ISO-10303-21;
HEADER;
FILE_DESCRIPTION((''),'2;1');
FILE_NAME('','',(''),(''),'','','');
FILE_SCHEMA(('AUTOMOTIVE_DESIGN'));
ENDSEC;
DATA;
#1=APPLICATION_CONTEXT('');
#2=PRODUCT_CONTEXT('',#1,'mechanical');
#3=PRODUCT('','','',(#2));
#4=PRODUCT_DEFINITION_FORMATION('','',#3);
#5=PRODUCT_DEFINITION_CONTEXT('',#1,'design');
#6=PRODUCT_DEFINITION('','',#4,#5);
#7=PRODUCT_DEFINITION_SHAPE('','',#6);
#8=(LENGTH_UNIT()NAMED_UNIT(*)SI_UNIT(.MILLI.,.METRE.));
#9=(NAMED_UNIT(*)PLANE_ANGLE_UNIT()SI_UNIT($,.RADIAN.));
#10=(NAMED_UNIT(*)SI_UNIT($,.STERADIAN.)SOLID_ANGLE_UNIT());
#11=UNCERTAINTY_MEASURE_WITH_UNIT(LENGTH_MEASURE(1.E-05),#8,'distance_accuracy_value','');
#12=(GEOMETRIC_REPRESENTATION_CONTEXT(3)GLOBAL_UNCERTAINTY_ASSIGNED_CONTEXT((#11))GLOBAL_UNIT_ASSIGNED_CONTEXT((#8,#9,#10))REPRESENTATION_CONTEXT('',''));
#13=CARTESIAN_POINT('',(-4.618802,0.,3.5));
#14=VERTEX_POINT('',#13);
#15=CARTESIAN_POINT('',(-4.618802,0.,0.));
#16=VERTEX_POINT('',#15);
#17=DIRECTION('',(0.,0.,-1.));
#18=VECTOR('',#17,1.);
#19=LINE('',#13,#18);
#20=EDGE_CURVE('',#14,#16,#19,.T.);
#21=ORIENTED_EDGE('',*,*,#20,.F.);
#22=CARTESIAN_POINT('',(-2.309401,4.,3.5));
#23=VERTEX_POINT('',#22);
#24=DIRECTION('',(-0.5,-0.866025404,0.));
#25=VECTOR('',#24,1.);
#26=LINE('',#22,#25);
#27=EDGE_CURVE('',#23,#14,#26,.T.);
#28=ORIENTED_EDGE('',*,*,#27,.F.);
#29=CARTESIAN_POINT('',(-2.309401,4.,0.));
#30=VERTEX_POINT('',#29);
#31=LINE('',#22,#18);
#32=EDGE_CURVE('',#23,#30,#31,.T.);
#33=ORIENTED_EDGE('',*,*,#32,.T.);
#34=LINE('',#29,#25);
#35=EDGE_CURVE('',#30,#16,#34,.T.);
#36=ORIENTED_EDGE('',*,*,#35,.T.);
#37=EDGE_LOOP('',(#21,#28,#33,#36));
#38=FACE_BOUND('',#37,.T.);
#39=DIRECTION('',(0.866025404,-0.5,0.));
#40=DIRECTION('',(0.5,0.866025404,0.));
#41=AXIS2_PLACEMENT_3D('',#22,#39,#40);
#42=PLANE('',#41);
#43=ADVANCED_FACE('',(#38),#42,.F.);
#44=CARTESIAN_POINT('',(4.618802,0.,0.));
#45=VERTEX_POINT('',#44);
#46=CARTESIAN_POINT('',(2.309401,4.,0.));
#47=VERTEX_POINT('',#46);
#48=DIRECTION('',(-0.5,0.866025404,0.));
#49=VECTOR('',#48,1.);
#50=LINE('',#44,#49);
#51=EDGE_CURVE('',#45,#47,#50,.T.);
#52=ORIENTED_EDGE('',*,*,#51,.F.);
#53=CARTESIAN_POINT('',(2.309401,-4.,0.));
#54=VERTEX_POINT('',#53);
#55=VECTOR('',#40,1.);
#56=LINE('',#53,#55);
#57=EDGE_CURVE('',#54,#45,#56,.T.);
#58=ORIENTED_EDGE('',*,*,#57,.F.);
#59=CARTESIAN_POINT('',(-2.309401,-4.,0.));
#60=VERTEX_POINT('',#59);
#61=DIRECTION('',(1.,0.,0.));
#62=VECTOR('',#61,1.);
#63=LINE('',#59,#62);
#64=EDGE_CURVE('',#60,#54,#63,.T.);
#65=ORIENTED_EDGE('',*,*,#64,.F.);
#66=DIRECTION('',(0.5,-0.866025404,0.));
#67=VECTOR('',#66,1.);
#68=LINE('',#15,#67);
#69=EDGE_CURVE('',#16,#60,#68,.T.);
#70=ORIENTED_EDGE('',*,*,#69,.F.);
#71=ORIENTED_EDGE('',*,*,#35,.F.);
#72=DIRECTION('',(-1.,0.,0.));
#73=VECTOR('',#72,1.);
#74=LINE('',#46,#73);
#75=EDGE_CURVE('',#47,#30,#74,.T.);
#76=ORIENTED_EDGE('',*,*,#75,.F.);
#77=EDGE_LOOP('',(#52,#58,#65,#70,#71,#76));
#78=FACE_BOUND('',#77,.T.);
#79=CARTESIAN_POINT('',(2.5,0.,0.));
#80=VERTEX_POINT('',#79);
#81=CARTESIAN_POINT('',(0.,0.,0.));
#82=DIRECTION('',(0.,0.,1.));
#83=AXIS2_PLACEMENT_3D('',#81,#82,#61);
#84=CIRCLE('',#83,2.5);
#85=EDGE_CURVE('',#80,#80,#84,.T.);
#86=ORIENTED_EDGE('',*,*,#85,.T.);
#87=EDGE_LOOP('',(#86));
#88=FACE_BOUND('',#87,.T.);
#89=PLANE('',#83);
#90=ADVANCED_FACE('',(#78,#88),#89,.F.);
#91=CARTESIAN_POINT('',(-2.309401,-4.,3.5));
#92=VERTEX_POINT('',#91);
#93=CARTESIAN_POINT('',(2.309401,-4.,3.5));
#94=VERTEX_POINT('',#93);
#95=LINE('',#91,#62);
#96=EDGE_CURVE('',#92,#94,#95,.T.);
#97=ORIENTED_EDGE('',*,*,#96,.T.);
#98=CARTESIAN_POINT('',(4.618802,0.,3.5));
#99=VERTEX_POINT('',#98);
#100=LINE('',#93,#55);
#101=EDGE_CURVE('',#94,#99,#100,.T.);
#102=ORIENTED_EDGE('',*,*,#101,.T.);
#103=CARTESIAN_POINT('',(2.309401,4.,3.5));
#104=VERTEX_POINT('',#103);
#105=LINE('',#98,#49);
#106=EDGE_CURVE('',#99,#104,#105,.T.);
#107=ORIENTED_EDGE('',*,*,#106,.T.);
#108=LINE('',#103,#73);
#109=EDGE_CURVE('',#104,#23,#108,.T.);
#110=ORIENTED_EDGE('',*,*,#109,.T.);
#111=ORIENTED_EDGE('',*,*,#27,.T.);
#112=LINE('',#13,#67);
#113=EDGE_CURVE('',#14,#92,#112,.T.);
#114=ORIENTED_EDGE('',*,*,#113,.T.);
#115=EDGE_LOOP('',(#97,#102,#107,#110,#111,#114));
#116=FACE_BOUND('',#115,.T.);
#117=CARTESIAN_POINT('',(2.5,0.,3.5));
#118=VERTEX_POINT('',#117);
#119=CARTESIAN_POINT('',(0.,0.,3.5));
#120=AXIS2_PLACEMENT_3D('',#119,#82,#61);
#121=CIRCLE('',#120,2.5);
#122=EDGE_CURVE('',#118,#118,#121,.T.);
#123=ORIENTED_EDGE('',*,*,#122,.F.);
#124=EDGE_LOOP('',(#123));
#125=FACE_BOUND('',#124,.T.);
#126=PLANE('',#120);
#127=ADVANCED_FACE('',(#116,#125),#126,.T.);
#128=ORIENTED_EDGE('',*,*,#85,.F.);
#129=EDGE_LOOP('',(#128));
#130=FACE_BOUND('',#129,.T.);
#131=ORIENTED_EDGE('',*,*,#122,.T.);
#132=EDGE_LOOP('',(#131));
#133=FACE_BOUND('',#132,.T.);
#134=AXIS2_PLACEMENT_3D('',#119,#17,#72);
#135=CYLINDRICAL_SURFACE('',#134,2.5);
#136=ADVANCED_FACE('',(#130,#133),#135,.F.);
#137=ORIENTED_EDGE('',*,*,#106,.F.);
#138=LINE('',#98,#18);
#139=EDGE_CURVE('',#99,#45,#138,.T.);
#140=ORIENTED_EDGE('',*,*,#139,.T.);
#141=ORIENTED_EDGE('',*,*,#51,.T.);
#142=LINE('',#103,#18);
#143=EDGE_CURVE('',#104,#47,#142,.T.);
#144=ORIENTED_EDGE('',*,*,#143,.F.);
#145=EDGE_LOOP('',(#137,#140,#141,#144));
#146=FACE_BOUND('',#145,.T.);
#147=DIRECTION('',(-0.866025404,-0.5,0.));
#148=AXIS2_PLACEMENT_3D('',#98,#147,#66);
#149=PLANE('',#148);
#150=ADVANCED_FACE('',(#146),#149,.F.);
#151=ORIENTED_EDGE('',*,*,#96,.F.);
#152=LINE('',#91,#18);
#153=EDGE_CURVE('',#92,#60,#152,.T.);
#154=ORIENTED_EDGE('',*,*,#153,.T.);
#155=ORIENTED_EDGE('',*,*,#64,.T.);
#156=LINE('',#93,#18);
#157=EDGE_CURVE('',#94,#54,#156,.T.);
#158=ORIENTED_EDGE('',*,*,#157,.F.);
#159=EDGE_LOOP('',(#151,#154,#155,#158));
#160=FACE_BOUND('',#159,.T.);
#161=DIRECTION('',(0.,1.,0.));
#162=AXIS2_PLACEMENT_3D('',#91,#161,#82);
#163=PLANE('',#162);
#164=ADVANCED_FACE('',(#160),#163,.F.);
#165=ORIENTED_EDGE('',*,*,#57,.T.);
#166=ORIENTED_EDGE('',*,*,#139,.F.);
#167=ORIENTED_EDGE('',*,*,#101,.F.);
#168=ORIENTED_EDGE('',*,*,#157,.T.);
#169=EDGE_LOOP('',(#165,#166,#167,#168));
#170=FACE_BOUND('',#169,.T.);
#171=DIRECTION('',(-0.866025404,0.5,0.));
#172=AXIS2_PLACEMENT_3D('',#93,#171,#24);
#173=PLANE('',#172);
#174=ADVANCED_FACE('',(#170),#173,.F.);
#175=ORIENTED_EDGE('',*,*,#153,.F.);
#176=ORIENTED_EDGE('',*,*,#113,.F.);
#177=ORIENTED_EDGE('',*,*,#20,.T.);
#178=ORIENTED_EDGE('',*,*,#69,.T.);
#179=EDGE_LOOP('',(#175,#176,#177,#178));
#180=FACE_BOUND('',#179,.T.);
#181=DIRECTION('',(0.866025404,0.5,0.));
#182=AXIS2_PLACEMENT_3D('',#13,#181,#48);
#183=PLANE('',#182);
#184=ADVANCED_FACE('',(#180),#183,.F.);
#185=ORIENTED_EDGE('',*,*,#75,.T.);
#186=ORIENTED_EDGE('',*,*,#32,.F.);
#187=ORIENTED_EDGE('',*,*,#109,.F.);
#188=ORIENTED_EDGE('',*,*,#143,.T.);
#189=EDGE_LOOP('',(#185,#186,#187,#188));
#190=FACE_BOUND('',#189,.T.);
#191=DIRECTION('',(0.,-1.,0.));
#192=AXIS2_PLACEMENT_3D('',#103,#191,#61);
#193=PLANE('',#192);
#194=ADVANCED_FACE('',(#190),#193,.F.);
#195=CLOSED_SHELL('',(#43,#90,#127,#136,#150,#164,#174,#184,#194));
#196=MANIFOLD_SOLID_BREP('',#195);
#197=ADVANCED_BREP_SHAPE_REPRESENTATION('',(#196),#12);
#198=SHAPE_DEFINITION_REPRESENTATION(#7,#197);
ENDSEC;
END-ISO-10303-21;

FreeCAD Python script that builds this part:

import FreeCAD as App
import Part
import Sketcher
Q = App.Units.Quantity

doc = App.newDocument("Part")
body = doc.addObject("PartDesign::Body", "Body")

# Sketch on XY plane
sketch1 = body.newObject("Sketcher::SketchObject", "Sketch")
sketch1.AttachmentSupport = (doc.getObject("XY_Plane"), [""])
sketch1.MapMode = "FlatFace"
sketch1.addGeometry([
    Part.LineSegment(App.Vector(4.6, 0, 0), App.Vector(2.3, 4, 0)),  # 0
    Part.LineSegment(App.Vector(2.3, 4, 0), App.Vector(-2.3, 4, 0)),  # 1
    Part.LineSegment(App.Vector(-2.3, 4, 0), App.Vector(-4.6, 0, 0)),  # 2
    Part.LineSegment(App.Vector(-4.6, 0, 0), App.Vector(-2.3, -4, 0)),  # 3
    Part.LineSegment(App.Vector(-2.3, -4, 0), App.Vector(2.3, -4, 0)),  # 4
    Part.LineSegment(App.Vector(2.3, -4, 0), App.Vector(4.6, 0, 0)),  # 5
    Part.Circle(App.Vector(0, 0, 0), App.Vector(0, 0, 1), 2.5),  # 6
], False)
sketch1.addConstraint([
    Sketcher.Constraint("Coincident", 0, 2, 1, 1),
    Sketcher.Constraint("Coincident", 1, 2, 2, 1),
    Sketcher.Constraint("Coincident", 2, 2, 3, 1),
    Sketcher.Constraint("Coincident", 3, 2, 4, 1),
    Sketcher.Constraint("Coincident", 4, 2, 5, 1),
    Sketcher.Constraint("Coincident", 5, 2, 0, 1),
    Sketcher.Constraint("Horizontal", 1),
    Sketcher.Constraint("Horizontal", 4),
    Sketcher.Constraint("Coincident", 6, 3, -1, 1),
    Sketcher.Constraint("Symmetric", 0, 2, 3, 2, -1, 1),
    Sketcher.Constraint("Symmetric", 2, 2, 5, 2, -1, 1),
    Sketcher.Constraint("PointOnObject", 2, 2, -1),
    Sketcher.Constraint("Parallel", 2, 5),
    Sketcher.Constraint("Vertical", 1, 2, 3, 2),
    Sketcher.Constraint("Diameter", 6, 5.0),
    Sketcher.Constraint("Angle", 0, Q("120 deg")),
    Sketcher.Constraint("DistanceY", -1, 1, 0, 2, 4.0),
    Sketcher.Constraint("DistanceX", -1, 1, 0, 2, 2.309401),
])
pad1 = body.newObject("PartDesign::Pad", "Pad")
pad1.Profile = sketch1
pad1.Length = 3.5

doc.recompute()
